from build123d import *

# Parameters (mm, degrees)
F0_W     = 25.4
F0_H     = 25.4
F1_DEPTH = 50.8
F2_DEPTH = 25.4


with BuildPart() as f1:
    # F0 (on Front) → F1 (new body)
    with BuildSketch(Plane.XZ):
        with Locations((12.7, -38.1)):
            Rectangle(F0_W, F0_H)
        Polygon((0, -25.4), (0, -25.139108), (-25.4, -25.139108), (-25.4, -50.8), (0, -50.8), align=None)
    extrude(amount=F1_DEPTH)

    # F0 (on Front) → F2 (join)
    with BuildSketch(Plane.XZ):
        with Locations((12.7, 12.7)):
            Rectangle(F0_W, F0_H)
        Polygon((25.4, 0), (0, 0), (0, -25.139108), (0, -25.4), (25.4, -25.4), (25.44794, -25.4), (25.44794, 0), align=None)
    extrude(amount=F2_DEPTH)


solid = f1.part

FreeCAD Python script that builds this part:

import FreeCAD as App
import Part
import Sketcher
Q = App.Units.Quantity


def add_polygon(sketch, points):
    """Adds a closed chain of lines whose ends are joined by coincident constraints."""
    first, n = sketch.GeometryCount, len(points)
    for a, b in zip(points, points[1:] + points[:1]):
        sketch.addGeometry(Part.LineSegment(App.Vector(*a, 0), App.Vector(*b, 0)), False)
    for i in range(n):
        sketch.addConstraint(Sketcher.Constraint("Coincident", first + i, 2, first + (i + 1) % n, 1))

doc = App.newDocument("Part")
params = doc.addObject("Spreadsheet::Sheet", "Params")
for row, (alias, value) in enumerate([
    ("sketch1_width", "1 in"),
    ("pad1_length", "2 in"),
    ("sketch2_width", "1 in"),
    ("pad2_length", "1 in"),
], start=1):
    params.set(f"A{row}", alias)
    params.set(f"B{row}", "=" + value)
    params.setAlias(f"B{row}", alias)

body = doc.addObject("PartDesign::Body", "Body")

sketch1 = body.newObject("Sketcher::SketchObject", "Sketch")
sketch1.AttachmentSupport = (doc.getObject("XZ_Plane"), [""])
sketch1.MapMode = "FlatFace"
add_polygon(sketch1, [(25.4, -50.8), (25.4, -25.4), (0, -25.4), (0, -25.14), (-25.4, -25.14), (-25.4, -50.8)])
sketch1.addConstraint([
    Sketcher.Constraint("Vertical", 0),
    Sketcher.Constraint("Horizontal", 1),
    Sketcher.Constraint("Vertical", 2),
    Sketcher.Constraint("Horizontal", 3),
    Sketcher.Constraint("Vertical", 4),
    Sketcher.Constraint("Horizontal", 5),
    Sketcher.Constraint("PointOnObject", 1, 2, -2),
    Sketcher.Constraint("Equal", 1, 3),
    Sketcher.Constraint("Equal", 3, 0),
    Sketcher.Constraint("DistanceX", 1, 2, 1, 1, Q("1 in")),
    Sketcher.Constraint("DistanceY", 0, 2, -1, 1, Q("1 in")),
    Sketcher.Constraint("DistanceY", 2, 1, 2, 2, 0.260892),
])
sketch1.setExpression("Constraints[15]", "Params.sketch1_width")
pad1 = body.newObject("PartDesign::Pad", "Pad")
pad1.Profile = sketch1
pad1.setExpression("Length", "Params.pad1_length")

sketch2 = body.newObject("Sketcher::SketchObject", "Sketch001")
sketch2.AttachmentSupport = (doc.getObject("XZ_Plane"), [""])
sketch2.MapMode = "FlatFace"
add_polygon(sketch2, [(0, 25.4), (0, -25.4), (25.448, -25.4), (25.448, 0), (25.4, 0), (25.4, 25.4)])
sketch2.addConstraint([
    Sketcher.Constraint("Vertical", 0),
    Sketcher.Constraint("Horizontal", 1),
    Sketcher.Constraint("Vertical", 2),
    Sketcher.Constraint("Horizontal", 3),
    Sketcher.Constraint("Vertical", 4),
    Sketcher.Constraint("Horizontal", 5),
    Sketcher.Constraint("Symmetric", 0, 2, 5, 2, -1, 1),
    Sketcher.Constraint("PointOnObject", 2, 2, -1),
    Sketcher.Constraint("Equal", 5, 2),
    Sketcher.Constraint("DistanceX", 5, 2, 5, 1, Q("1 in")),
    Sketcher.Constraint("DistanceX", 1, 1, 1, 2, 25.44794),
])
sketch2.setExpression("Constraints[15]", "Params.sketch2_width")
pad2 = body.newObject("PartDesign::Pad", "Pad001")
pad2.Profile = sketch2
pad2.setExpression("Length", "Params.pad2_length")

doc.recompute()
